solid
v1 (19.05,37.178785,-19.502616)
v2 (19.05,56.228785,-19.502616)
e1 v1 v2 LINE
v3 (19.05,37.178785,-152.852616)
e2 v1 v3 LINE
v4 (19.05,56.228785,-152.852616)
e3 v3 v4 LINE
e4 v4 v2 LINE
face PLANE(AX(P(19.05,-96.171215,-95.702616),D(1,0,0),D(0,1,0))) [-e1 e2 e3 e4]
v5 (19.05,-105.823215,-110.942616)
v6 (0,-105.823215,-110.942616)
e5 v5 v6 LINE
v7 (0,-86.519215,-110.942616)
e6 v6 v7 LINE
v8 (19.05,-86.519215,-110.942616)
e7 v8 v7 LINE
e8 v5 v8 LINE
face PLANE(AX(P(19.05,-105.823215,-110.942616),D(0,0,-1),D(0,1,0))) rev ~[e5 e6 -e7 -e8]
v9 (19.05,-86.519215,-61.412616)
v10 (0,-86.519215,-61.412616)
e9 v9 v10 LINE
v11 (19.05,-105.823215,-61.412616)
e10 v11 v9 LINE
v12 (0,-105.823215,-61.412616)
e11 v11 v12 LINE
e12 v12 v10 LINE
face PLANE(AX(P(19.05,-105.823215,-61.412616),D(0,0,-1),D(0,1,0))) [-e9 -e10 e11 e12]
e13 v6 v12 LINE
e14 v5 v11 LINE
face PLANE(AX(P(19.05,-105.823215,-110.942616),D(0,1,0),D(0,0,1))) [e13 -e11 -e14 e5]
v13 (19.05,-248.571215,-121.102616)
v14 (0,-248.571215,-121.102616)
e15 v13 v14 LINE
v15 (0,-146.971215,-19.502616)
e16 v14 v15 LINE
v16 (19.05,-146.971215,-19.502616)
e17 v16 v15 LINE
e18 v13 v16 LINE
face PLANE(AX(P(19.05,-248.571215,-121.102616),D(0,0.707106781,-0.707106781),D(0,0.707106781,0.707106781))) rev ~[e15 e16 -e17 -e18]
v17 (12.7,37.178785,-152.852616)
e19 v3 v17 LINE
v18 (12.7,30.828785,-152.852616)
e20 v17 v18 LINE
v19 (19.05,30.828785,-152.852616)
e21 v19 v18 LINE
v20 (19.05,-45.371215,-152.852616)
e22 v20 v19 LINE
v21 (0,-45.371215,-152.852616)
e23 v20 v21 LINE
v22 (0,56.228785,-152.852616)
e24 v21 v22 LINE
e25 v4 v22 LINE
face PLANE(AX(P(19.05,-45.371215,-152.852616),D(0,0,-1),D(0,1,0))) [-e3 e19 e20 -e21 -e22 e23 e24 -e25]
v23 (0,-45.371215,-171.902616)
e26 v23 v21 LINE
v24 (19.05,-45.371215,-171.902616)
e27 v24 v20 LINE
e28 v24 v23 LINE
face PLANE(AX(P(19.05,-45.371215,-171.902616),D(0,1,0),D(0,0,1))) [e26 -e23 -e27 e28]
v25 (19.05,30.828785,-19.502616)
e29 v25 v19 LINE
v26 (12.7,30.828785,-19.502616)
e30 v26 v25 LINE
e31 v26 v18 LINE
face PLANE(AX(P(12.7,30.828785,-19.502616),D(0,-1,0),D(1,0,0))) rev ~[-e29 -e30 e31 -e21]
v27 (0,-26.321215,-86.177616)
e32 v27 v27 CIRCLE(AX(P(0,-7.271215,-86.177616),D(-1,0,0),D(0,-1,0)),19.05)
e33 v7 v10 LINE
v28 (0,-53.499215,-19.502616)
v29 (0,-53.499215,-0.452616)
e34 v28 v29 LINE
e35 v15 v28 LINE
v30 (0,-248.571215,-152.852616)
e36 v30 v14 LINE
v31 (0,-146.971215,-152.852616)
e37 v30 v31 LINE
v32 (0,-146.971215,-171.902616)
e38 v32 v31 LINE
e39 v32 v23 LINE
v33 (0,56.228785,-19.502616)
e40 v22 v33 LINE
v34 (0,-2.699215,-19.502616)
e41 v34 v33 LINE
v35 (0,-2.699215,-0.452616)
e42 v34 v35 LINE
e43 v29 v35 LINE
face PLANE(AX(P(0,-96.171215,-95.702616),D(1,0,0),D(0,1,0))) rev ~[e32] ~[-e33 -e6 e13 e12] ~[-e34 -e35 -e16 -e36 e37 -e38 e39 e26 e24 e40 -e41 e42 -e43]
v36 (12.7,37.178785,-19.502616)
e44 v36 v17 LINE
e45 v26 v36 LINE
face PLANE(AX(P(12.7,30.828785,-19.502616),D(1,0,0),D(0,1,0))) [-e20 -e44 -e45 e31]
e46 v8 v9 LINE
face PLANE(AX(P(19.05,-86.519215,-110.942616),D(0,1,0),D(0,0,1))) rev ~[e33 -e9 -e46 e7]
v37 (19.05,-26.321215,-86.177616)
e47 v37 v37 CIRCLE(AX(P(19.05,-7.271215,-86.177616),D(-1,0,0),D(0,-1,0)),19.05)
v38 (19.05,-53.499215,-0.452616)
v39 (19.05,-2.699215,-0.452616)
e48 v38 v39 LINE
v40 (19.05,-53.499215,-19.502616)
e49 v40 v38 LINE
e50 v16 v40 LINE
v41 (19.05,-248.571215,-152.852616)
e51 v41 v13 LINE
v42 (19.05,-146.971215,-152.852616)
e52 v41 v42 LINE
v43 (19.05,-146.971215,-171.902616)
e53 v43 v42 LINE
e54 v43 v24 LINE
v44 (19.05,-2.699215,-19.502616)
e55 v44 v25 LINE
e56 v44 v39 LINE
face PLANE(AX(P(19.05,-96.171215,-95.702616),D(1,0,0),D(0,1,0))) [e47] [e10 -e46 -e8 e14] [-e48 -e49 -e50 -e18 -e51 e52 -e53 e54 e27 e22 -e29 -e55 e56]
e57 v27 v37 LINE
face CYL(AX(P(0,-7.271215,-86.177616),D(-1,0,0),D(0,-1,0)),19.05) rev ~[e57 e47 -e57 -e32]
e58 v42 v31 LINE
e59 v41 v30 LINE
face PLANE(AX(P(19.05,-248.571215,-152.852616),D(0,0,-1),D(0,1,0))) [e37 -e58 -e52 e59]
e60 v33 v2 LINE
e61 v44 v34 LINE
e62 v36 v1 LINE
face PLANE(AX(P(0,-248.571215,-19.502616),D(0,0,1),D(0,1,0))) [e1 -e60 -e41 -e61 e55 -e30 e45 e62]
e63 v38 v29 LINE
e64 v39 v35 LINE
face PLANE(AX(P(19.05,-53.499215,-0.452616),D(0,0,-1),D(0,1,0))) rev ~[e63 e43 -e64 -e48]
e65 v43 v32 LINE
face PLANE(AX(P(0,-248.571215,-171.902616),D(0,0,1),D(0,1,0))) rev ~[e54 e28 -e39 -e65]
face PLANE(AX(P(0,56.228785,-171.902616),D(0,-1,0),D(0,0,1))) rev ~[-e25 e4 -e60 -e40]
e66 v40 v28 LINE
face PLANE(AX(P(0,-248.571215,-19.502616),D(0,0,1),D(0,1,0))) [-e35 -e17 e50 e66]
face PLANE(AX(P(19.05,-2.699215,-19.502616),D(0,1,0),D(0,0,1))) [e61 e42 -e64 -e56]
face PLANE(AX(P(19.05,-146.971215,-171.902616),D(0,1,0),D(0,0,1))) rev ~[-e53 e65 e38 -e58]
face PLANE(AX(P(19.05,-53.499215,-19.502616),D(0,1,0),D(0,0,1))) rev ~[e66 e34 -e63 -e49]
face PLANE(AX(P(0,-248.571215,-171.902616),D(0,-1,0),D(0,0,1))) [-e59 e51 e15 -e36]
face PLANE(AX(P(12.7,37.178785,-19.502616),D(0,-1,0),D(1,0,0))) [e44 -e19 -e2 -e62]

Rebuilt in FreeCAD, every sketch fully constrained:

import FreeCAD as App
import Part
import Sketcher
from FreeCAD import Vector
Q = App.Units.Quantity

doc = App.newDocument("Part")
params = doc.addObject("Spreadsheet::Sheet", "Params")
for row, (alias, value) in enumerate([
    ("sketch1_width", "12 in"),
    ("sketch1_height", "6 in"),
    ("pad1_length", "0.75 in"),
    ("sketch2_width", "4 in"),
    ("sketch2_height", "0.75 in"),
    ("sketch3_width", "0.76 in"),
    ("sketch3_height", "1.95 in"),
    ("sketch4_width", "0.25 in"),
    ("sketch5_width", "4 in"),
    ("sketch6_diameter", "1.5 in"),
    ("sketch7_width", "2 in"),
    ("sketch7_height", "0.75 in"),
    ("pad2_length", "0.75 in"),
], start=1):
    params.set(f"A{row}", alias)
    params.set(f"B{row}", "=" + value)
    params.setAlias(f"B{row}", alias)

body = doc.addObject("PartDesign::Body", "Body")

# Sketch on YZ plane
sketch1 = body.newObject("Sketcher::SketchObject", "Sketch")
sketch1.AttachmentSupport = (doc.getObject("YZ_Plane"), [""])
sketch1.MapMode = "FlatFace"
sketch1.addGeometry([
    Part.LineSegment(Vector(-248.571215, -19.502616, 0), Vector(-248.571215, -171.902616, 0)),
    Part.LineSegment(Vector(-248.571215, -171.902616, 0), Vector(56.228785, -171.902616, 0)),
    Part.LineSegment(Vector(56.228785, -171.902616, 0), Vector(56.228785, -19.502616, 0)),
    Part.LineSegment(Vector(56.228785, -19.502616, 0), Vector(-248.571215, -19.502616, 0)),
], False)
sketch1.addConstraint([
    Sketcher.Constraint("Coincident", 0, 2, 1, 1),
    Sketcher.Constraint("Coincident", 1, 2, 2, 1),
    Sketcher.Constraint("Coincident", 2, 2, 3, 1),
    Sketcher.Constraint("Coincident", 3, 2, 0, 1),
    Sketcher.Constraint("Vertical", 0),
    Sketcher.Constraint("Horizontal", 1),
    Sketcher.Constraint("Vertical", 2),
    Sketcher.Constraint("Horizontal", 3),
    Sketcher.Constraint("DistanceX", 1, 1, 1, 2, Q("12 in")),
    Sketcher.Constraint("DistanceY", 0, 2, 0, 1, Q("6 in")),
    Sketcher.Constraint("DistanceX", 0, 2, -1, 1, 248.571215),
    Sketcher.Constraint("DistanceY", 0, 2, -1, 1, 171.902616),
])
sketch1.setExpression("Constraints[8]", "Params.sketch1_width")
sketch1.setExpression("Constraints[9]", "Params.sketch1_height")
pad1 = body.newObject("PartDesign::Pad", "Pad")
pad1.Profile = sketch1
pad1.setExpression("Length", "Params.pad1_length")

# Sketch on YZ plane
sketch2 = body.newObject("Sketcher::SketchObject", "Sketch001")
sketch2.AttachmentSupport = (doc.getObject("YZ_Plane"), [""])
sketch2.MapMode = "FlatFace"
sketch2.AttachmentOffset = App.Placement(Vector(0, 0, 0.75 * 25.4), App.Rotation())
sketch2.addGeometry([
    Part.LineSegment(Vector(-248.571215, -152.852616, 0), Vector(-248.571215, -171.902616, 0)),  # 0
    Part.LineSegment(Vector(-248.571215, -171.902616, 0), Vector(-146.971215, -171.902616, 0)),  # 1
    Part.LineSegment(Vector(-146.971215, -171.902616, 0), Vector(-146.971215, -152.852616, 0)),  # 2
    Part.LineSegment(Vector(-146.971215, -152.852616, 0), Vector(-248.571215, -152.852616, 0)),  # 3
    Part.LineSegment(Vector(-45.371215, -152.852616, 0), Vector(-45.371215, -171.902616, 0)),  # 4
    Part.LineSegment(Vector(-45.371215, -171.902616, 0), Vector(56.228785, -171.902616, 0)),  # 5
    Part.LineSegment(Vector(56.228785, -171.902616, 0), Vector(56.228785, -152.852616, 0)),  # 6
    Part.LineSegment(Vector(56.228785, -152.852616, 0), Vector(-45.371215, -152.852616, 0)),  # 7
], False)
sketch2.addConstraint([
    Sketcher.Constraint("Coincident", 0, 2, 1, 1),
    Sketcher.Constraint("Coincident", 1, 2, 2, 1),
    Sketcher.Constraint("Coincident", 2, 2, 3, 1),
    Sketcher.Constraint("Coincident", 3, 2, 0, 1),
    Sketcher.Constraint("Coincident", 4, 2, 5, 1),
    Sketcher.Constraint("Coincident", 5, 2, 6, 1),
    Sketcher.Constraint("Coincident", 6, 2, 7, 1),
    Sketcher.Constraint("Coincident", 7, 2, 4, 1),
    Sketcher.Constraint("Vertical", 0),
    Sketcher.Constraint("Horizontal", 1),
    Sketcher.Constraint("Vertical", 2),
    Sketcher.Constraint("Horizontal", 3),
    Sketcher.Constraint("Vertical", 4),
    Sketcher.Constraint("Horizontal", 5),
    Sketcher.Constraint("Vertical", 6),
    Sketcher.Constraint("Horizontal", 7),
    Sketcher.Constraint("Horizontal", 1, 2, 4, 2),
    Sketcher.Constraint("Horizontal", 3, 2, 6, 2),
    Sketcher.Constraint("Equal", 3, 5),
    Sketcher.Constraint("DistanceX", 1, 1, 1, 2, Q("4 in")),
    Sketcher.Constraint("DistanceX", 1, 2, 4, 2, Q("4 in")),
    Sketcher.Constraint("DistanceY", 0, 2, 0, 1, Q("0.75 in")),
    Sketcher.Constraint("DistanceX", 0, 2, -1, 1, 248.571215),
    Sketcher.Constraint("DistanceY", 0, 2, -1, 1, 171.902616),
])
sketch2.setExpression("Constraints[19]", "Params.sketch2_width")
sketch2.setExpression("Constraints[21]", "Params.sketch2_height")
pocket1 = body.newObject("PartDesign::Pocket", "Pocket")
pocket1.Profile = sketch2
pocket1.Type = "ThroughAll"

# Sketch on YZ plane
sketch3 = body.newObject("Sketcher::SketchObject", "Sketch002")
sketch3.AttachmentSupport = (doc.getObject("YZ_Plane"), [""])
sketch3.MapMode = "FlatFace"
sketch3.AttachmentOffset = App.Placement(Vector(0, 0, 0.75 * 25.4), App.Rotation())
sketch3.addGeometry([
    Part.LineSegment(Vector(-105.823215, -61.412616, 0), Vector(-105.823215, -110.942616, 0)),
    Part.LineSegment(Vector(-105.823215, -110.942616, 0), Vector(-86.519215, -110.942616, 0)),
    Part.LineSegment(Vector(-86.519215, -110.942616, 0), Vector(-86.519215, -61.412616, 0)),
    Part.LineSegment(Vector(-86.519215, -61.412616, 0), Vector(-105.823215, -61.412616, 0)),
], False)
sketch3.addConstraint([
    Sketcher.Constraint("Coincident", 0, 2, 1, 1),
    Sketcher.Constraint("Coincident", 1, 2, 2, 1),
    Sketcher.Constraint("Coincident", 2, 2, 3, 1),
    Sketcher.Constraint("Coincident", 3, 2, 0, 1),
    Sketcher.Constraint("Vertical", 0),
    Sketcher.Constraint("Horizontal", 1),
    Sketcher.Constraint("Vertical", 2),
    Sketcher.Constraint("Horizontal", 3),
    Sketcher.Constraint("DistanceX", 1, 1, 1, 2, Q("0.76 in")),
    Sketcher.Constraint("DistanceY", 0, 2, 0, 1, Q("1.95 in")),
    Sketcher.Constraint("DistanceX", 0, 2, -1, 1, 105.823215),
    Sketcher.Constraint("DistanceY", 0, 2, -1, 1, 110.942616),
])
sketch3.setExpression("Constraints[8]", "Params.sketch3_width")
sketch3.setExpression("Constraints[9]", "Params.sketch3_height")
pocket2 = body.newObject("PartDesign::Pocket", "Pocket001")
pocket2.Profile = sketch3
pocket2.Type = "ThroughAll"

# Sketch on XY plane
sketch4 = body.newObject("Sketcher::SketchObject", "Sketch003")
sketch4.AttachmentSupport = (doc.getObject("XY_Plane"), [""])
sketch4.MapMode = "FlatFace"
sketch4.AttachmentOffset = App.Placement(Vector(0, 0, -19.502616), App.Rotation())
sketch4.addGeometry([
    Part.LineSegment(Vector(12.7, 37.178785, 0), Vector(12.7, 30.828785, 0)),
    Part.LineSegment(Vector(12.7, 30.828785, 0), Vector(19.05, 30.828785, 0)),
    Part.LineSegment(Vector(19.05, 30.828785, 0), Vector(19.05, 37.178785, 0)),
    Part.LineSegment(Vector(19.05, 37.178785, 0), Vector(12.7, 37.178785, 0)),
], False)
sketch4.addConstraint([
    Sketcher.Constraint("Coincident", 0, 2, 1, 1),
    Sketcher.Constraint("Coincident", 1, 2, 2, 1),
    Sketcher.Constraint("Coincident", 2, 2, 3, 1),
    Sketcher.Constraint("Coincident", 3, 2, 0, 1),
    Sketcher.Constraint("Vertical", 0),
    Sketcher.Constraint("Horizontal", 1),
    Sketcher.Constraint("Vertical", 2),
    Sketcher.Constraint("Horizontal", 3),
    Sketcher.Constraint("Equal", 3, 0),
    Sketcher.Constraint("DistanceX", 1, 1, 1, 2, Q("0.25 in")),
    Sketcher.Constraint("DistanceX", -1, 1, 0, 2, Q("0.5 in")),
    Sketcher.Constraint("DistanceY", -1, 1, 0, 2, 30.828785),
])
sketch4.setExpression("Constraints[9]", "Params.sketch4_width")
pocket3 = body.newObject("PartDesign::Pocket", "Pocket002")
pocket3.Profile = sketch4
pocket3.Type = "ThroughAll"

# Sketch on YZ plane
sketch5 = body.newObject("Sketcher::SketchObject", "Sketch004")
sketch5.AttachmentSupport = (doc.getObject("YZ_Plane"), [""])
sketch5.MapMode = "FlatFace"
sketch5.AttachmentOffset = App.Placement(Vector(0, 0, 0.75 * 25.4), App.Rotation())
sketch5.addGeometry([
    Part.LineSegment(Vector(-146.971215, -19.502616, 0), Vector(-248.571215, -19.502616, 0)),
    Part.LineSegment(Vector(-248.571215, -19.502616, 0), Vector(-248.571215, -121.102616, 0)),
    Part.LineSegment(Vector(-248.571215, -121.102616, 0), Vector(-146.971215, -19.502616, 0)),
], False)
sketch5.addConstraint([
    Sketcher.Constraint("Coincident", 0, 2, 1, 1),
    Sketcher.Constraint("Coincident", 1, 2, 2, 1),
    Sketcher.Constraint("Coincident", 2, 2, 0, 1),
    Sketcher.Constraint("Horizontal", 0),
    Sketcher.Constraint("Vertical", 1),
    Sketcher.Constraint("Equal", 0, 1),
    Sketcher.Constraint("DistanceX", 0, 2, 0, 1, Q("4 in")),
    Sketcher.Constraint("DistanceX", 0, 2, -1, 1, 248.571215),
    Sketcher.Constraint("DistanceY", 0, 2, -1, 1, 19.502616),
])
sketch5.setExpression("Constraints[6]", "Params.sketch5_width")
pocket4 = body.newObject("PartDesign::Pocket", "Pocket003")
pocket4.Profile = sketch5
pocket4.Type = "ThroughAll"

# Sketch on YZ plane
sketch6 = body.newObject("Sketcher::SketchObject", "Sketch005")
sketch6.AttachmentSupport = (doc.getObject("YZ_Plane"), [""])
sketch6.MapMode = "FlatFace"
sketch6.addGeometry(Part.Circle(Vector(-7.271215, -86.177616, 0), Vector(0, 0, 1), 19.05), False)
sketch6.addConstraint([
    Sketcher.Constraint("Diameter", 0, Q("1.5 in")),
    Sketcher.Constraint("DistanceX", 0, 3, -1, 1, 7.271215),
    Sketcher.Constraint("DistanceY", 0, 3, -1, 1, 86.177616),
])
sketch6.setExpression("Constraints[0]", "Params.sketch6_diameter")
pocket5 = body.newObject("PartDesign::Pocket", "Pocket004")
pocket5.Profile = sketch6
pocket5.Type = "ThroughAll"
pocket5.Reversed = True

# Sketch on YZ plane
sketch7 = body.newObject("Sketcher::SketchObject", "Sketch006")
sketch7.AttachmentSupport = (doc.getObject("YZ_Plane"), [""])
sketch7.MapMode = "FlatFace"
sketch7.AttachmentOffset = App.Placement(Vector(0, 0, 0.75 * 25.4), App.Rotation())
sketch7.addGeometry([
    Part.LineSegment(Vector(-53.499215, -0.452616, 0), Vector(-53.499215, -19.502616, 0)),
    Part.LineSegment(Vector(-53.499215, -19.502616, 0), Vector(-2.699215, -19.502616, 0)),
    Part.LineSegment(Vector(-2.699215, -19.502616, 0), Vector(-2.699215, -0.452616, 0)),
    Part.LineSegment(Vector(-2.699215, -0.452616, 0), Vector(-53.499215, -0.452616, 0)),
], False)
sketch7.addConstraint([
    Sketcher.Constraint("Coincident", 0, 2, 1, 1),
    Sketcher.Constraint("Coincident", 1, 2, 2, 1),
    Sketcher.Constraint("Coincident", 2, 2, 3, 1),
    Sketcher.Constraint("Coincident", 3, 2, 0, 1),
    Sketcher.Constraint("Vertical", 0),
    Sketcher.Constraint("Horizontal", 1),
    Sketcher.Constraint("Vertical", 2),
    Sketcher.Constraint("Horizontal", 3),
    Sketcher.Constraint("DistanceX", 1, 1, 1, 2, Q("2 in")),
    Sketcher.Constraint("DistanceY", 0, 2, 0, 1, Q("0.75 in")),
    Sketcher.Constraint("DistanceX", 0, 2, -1, 1, 53.499215),
    Sketcher.Constraint("DistanceY", 0, 2, -1, 1, 19.502616),
])
sketch7.setExpression("Constraints[8]", "Params.sketch7_width")
sketch7.setExpression("Constraints[9]", "Params.sketch7_height")
pad2 = body.newObject("PartDesign::Pad", "Pad001")
pad2.Profile = sketch7
pad2.setExpression("Length", "Params.pad2_length")
pad2.Reversed = True

doc.recompute()
